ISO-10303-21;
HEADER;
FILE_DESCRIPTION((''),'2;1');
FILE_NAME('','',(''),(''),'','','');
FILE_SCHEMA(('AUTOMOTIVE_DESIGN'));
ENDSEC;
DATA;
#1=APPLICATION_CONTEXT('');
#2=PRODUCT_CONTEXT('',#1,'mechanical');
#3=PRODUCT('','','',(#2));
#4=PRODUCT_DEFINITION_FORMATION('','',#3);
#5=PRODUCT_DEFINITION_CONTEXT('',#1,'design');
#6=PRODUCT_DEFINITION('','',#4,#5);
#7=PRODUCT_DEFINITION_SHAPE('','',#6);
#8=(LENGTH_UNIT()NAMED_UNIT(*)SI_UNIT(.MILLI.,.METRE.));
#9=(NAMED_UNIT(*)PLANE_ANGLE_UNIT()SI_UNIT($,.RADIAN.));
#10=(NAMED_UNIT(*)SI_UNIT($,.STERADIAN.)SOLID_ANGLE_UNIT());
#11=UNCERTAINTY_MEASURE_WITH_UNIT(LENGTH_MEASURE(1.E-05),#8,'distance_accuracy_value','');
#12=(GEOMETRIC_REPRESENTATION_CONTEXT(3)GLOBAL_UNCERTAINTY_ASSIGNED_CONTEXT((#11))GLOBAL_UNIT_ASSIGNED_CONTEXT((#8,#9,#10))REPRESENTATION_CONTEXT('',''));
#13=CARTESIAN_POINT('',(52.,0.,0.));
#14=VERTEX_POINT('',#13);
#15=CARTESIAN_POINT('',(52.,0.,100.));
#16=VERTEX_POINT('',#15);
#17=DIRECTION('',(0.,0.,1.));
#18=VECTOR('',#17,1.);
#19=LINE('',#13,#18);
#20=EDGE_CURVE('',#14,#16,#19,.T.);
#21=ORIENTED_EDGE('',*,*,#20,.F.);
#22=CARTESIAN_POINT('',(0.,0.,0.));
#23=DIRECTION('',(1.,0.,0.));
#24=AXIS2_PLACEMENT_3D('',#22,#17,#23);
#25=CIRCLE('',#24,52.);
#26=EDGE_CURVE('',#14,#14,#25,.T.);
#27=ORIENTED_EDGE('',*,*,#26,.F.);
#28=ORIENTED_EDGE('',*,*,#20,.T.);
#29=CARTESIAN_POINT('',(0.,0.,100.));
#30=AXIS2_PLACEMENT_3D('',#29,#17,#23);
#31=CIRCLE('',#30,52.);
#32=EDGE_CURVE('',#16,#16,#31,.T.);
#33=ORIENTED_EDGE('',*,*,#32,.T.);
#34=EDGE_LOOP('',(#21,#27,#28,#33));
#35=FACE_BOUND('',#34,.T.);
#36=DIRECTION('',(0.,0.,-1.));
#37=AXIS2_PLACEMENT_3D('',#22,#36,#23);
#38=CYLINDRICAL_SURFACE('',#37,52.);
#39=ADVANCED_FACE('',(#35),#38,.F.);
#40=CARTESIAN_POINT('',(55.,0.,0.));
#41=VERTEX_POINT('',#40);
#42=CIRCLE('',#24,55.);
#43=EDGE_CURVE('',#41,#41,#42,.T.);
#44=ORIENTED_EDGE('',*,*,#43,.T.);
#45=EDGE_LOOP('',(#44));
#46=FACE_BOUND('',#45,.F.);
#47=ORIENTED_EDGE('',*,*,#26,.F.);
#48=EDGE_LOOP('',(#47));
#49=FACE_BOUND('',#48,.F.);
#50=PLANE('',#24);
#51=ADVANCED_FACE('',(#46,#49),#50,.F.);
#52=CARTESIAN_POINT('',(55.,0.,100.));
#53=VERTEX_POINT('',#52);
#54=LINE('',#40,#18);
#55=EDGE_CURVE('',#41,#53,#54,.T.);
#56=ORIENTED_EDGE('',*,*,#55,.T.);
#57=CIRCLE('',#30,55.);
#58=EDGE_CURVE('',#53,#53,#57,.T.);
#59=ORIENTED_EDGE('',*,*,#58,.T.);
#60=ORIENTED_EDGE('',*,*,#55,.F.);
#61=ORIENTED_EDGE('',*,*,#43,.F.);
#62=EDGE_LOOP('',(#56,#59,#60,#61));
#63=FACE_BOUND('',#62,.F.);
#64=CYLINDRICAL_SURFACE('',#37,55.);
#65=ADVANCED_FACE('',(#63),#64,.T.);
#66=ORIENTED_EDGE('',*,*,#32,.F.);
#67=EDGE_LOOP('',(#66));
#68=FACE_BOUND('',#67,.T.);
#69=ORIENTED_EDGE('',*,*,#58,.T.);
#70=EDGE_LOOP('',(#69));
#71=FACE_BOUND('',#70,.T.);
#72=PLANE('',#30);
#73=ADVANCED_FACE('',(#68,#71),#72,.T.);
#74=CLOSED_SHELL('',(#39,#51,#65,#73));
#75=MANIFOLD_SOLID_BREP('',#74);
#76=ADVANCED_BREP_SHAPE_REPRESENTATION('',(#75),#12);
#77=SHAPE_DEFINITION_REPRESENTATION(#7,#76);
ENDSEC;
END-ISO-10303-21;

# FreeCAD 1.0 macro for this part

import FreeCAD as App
import Part
import Sketcher
from FreeCAD import Vector
Q = App.Units.Quantity

doc = App.newDocument("Part")
params = doc.addObject("Spreadsheet::Sheet", "Params")
for row, (alias, value) in enumerate([
    ("pad1_length", "3.9370079 in"),
], start=1):
    params.set(f"A{row}", alias)
    params.set(f"B{row}", "=" + value)
    params.setAlias(f"B{row}", alias)

body = doc.addObject("PartDesign::Body", "Body")

# Sketch on XY plane
sketch1 = body.newObject("Sketcher::SketchObject", "Sketch")
sketch1.AttachmentSupport = (doc.getObject("XY_Plane"), [""])
sketch1.MapMode = "FlatFace"
sketch1.addGeometry([
    Part.Circle(Vector(0, 0, 0), Vector(0, 0, 1), 55),
    Part.Circle(Vector(0, 0, 0), Vector(0, 0, 1), 52),
], False)
sketch1.addConstraint([
    Sketcher.Constraint("Coincident", 0, 3, -1, 1),
    Sketcher.Constraint("Coincident", 1, 3, -1, 1),
    Sketcher.Constraint("Diameter", 0, Q("4.3307 in")),
    Sketcher.Constraint("Diameter", 1, Q("4.0945 in")),
])
pad1 = body.newObject("PartDesign::Pad", "Pad")
pad1.Profile = sketch1
pad1.setExpression("Length", "Params.pad1_length")

doc.recompute()
